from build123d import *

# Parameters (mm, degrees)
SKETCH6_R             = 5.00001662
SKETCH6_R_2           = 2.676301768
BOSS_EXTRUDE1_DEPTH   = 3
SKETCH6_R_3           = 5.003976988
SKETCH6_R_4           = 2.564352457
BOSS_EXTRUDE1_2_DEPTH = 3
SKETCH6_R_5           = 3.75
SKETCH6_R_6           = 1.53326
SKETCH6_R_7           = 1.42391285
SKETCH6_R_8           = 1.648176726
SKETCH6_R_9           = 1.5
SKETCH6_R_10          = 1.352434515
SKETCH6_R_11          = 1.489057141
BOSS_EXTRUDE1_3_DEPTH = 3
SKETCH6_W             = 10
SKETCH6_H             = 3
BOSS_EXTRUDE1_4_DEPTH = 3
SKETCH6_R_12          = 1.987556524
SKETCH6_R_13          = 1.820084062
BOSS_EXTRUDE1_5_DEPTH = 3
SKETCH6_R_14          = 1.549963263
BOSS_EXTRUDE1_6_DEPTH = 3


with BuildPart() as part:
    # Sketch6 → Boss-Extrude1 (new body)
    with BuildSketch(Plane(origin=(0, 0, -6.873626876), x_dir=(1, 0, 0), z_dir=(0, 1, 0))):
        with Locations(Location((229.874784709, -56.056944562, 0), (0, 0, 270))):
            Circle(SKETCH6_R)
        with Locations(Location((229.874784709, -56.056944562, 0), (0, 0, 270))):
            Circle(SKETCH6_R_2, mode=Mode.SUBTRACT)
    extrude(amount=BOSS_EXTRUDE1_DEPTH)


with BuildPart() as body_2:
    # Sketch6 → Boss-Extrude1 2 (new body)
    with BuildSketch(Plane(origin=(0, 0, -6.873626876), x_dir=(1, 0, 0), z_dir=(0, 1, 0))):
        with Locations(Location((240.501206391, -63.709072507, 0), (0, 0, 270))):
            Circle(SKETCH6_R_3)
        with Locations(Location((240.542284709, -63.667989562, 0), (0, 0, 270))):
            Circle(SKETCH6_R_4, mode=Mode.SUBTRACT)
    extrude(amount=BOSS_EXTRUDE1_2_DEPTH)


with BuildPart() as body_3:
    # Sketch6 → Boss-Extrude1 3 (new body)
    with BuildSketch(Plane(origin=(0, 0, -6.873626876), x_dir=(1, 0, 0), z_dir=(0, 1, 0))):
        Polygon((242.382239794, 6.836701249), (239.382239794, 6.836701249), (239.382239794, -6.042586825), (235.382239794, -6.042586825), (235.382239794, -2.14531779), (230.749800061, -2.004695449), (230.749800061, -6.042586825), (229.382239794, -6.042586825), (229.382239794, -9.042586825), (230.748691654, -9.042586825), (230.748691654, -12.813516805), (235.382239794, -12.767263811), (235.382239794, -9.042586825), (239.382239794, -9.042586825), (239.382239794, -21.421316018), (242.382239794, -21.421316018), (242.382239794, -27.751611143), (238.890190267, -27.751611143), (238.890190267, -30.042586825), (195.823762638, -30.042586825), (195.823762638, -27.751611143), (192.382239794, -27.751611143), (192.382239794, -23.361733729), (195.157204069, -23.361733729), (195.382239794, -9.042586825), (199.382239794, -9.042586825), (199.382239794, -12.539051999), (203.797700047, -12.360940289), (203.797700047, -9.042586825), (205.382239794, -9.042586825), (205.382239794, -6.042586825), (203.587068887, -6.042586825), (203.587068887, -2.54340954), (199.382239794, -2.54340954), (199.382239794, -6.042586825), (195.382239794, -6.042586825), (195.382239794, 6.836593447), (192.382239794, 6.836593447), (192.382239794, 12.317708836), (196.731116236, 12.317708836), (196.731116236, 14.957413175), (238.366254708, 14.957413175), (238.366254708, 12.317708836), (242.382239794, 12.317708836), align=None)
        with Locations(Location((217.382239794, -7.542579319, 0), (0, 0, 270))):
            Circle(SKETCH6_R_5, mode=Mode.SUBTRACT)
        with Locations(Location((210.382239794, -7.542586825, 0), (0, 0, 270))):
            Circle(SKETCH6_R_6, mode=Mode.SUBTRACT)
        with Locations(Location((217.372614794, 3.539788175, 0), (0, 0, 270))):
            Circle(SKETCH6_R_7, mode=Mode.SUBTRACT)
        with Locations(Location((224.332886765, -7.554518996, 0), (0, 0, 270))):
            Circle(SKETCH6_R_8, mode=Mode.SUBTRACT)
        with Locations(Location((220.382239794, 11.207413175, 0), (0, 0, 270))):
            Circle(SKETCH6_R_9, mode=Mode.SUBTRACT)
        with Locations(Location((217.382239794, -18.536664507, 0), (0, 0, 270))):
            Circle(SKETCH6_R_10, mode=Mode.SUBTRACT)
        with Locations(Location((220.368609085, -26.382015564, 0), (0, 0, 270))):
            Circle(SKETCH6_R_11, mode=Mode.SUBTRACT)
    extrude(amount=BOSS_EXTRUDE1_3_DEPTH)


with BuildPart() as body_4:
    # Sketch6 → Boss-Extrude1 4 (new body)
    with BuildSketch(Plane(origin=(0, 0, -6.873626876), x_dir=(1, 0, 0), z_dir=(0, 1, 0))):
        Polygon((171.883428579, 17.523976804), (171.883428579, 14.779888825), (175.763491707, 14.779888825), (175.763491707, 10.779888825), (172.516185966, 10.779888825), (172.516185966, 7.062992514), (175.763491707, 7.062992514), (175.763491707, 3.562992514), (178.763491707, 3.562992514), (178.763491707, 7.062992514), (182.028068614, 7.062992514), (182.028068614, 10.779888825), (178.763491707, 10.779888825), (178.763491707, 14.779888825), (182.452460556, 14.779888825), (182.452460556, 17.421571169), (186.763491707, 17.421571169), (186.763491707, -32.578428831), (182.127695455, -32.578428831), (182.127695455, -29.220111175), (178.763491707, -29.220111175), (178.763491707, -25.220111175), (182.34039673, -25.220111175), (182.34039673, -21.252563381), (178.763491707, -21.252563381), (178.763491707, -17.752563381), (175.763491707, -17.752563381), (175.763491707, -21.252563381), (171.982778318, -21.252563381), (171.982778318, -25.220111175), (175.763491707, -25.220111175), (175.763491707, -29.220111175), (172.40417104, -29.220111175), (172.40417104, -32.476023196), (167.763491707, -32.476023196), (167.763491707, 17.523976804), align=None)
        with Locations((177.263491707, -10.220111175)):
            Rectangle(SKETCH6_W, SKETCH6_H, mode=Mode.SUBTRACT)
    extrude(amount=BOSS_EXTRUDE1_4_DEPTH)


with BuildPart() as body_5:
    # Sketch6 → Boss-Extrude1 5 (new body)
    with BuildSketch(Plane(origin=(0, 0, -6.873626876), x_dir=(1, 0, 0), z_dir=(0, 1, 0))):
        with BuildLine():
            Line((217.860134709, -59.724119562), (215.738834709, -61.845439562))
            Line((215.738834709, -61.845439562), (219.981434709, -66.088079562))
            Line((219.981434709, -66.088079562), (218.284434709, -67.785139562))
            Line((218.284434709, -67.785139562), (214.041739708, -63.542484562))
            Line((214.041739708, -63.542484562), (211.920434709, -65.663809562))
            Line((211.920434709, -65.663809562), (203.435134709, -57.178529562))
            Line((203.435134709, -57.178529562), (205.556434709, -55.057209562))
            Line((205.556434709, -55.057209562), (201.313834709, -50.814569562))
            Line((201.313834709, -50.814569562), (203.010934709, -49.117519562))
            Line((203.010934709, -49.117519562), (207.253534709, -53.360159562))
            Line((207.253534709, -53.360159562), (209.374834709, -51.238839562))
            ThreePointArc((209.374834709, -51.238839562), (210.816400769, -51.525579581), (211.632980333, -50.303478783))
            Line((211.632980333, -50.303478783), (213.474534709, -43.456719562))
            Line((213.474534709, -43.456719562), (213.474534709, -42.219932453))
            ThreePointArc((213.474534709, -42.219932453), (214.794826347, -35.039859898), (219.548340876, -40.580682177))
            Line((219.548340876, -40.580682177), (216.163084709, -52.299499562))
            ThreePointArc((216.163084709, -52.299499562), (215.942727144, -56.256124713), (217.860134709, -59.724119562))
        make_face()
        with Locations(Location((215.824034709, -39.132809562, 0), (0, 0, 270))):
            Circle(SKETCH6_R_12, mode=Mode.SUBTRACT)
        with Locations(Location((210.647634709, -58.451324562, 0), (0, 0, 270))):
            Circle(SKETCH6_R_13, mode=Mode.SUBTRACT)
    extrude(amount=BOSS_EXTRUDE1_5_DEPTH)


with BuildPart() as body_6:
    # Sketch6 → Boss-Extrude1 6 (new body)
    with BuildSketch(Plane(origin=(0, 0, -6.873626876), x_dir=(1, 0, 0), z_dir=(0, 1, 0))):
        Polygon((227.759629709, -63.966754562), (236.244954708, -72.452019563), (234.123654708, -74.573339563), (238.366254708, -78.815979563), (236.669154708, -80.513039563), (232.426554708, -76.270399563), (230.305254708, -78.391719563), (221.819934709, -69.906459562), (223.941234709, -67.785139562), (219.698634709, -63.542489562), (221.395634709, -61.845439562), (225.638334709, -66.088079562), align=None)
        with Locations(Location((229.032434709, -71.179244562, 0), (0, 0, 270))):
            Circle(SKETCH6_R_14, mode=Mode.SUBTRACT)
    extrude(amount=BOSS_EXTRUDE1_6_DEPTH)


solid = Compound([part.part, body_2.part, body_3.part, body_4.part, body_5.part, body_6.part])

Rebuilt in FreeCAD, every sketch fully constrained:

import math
import FreeCAD as App
import Part
import Sketcher
Q = App.Units.Quantity


def add_polygon(sketch, points):
    """Adds a closed chain of lines whose ends are joined by coincident constraints."""
    first, n = sketch.GeometryCount, len(points)
    for a, b in zip(points, points[1:] + points[:1]):
        sketch.addGeometry(Part.LineSegment(App.Vector(*a, 0), App.Vector(*b, 0)), False)
    for i in range(n):
        sketch.addConstraint(Sketcher.Constraint("Coincident", first + i, 2, first + (i + 1) % n, 1))

doc = App.newDocument("Part")
body = doc.addObject("PartDesign::Body", "Body")

# Sketch on XZ plane
sketch1 = body.newObject("Sketcher::SketchObject", "Sketch")
sketch1.AttachmentSupport = (doc.getObject("XZ_Plane"), [""])
sketch1.MapMode = "FlatFace"
sketch1.addGeometry([
    Part.Circle(App.Vector(229.9, 49.2, 0), App.Vector(0, 0, 1), 5),
    Part.Circle(App.Vector(229.9, 49.2, 0), App.Vector(0, 0, 1), 2.7),
], False)
sketch1.addConstraint([
    Sketcher.Constraint("Coincident", 1, 3, 0, 3),
    Sketcher.Constraint("Diameter", 0, Q("10.000033 mm")),
    Sketcher.Constraint("Diameter", 1, Q("5.352604 mm")),
    Sketcher.Constraint("DistanceX", -1, 1, 0, 3, Q("229.874785 mm")),
    Sketcher.Constraint("DistanceY", -1, 1, 0, 3, Q("49.183318 mm")),
])
pad1 = body.newObject("PartDesign::Pad", "Pad")
pad1.Profile = sketch1
pad1.Length = 3
pad1.Reversed = True
body2 = doc.addObject("PartDesign::Body", "Body001")

# Sketch on XZ plane
sketch2 = body2.newObject("Sketcher::SketchObject", "Sketch001")
sketch2.AttachmentSupport = (doc.getObject("XZ_Plane001"), [""])
sketch2.MapMode = "FlatFace"
sketch2.addGeometry([
    Part.Circle(App.Vector(240.5, 56.8, 0), App.Vector(0, 0, 1), 5),
    Part.Circle(App.Vector(240.5, 56.8, 0), App.Vector(0, 0, 1), 2.6),
], False)
sketch2.addConstraint([
    Sketcher.Constraint("Diameter", 0, Q("10.007954 mm")),
    Sketcher.Constraint("Diameter", 1, Q("5.128705 mm")),
    Sketcher.Constraint("DistanceX", 0, 3, 1, 3, Q("0.041078 mm")),
    Sketcher.Constraint("DistanceX", -1, 1, 0, 3, Q("240.501206 mm")),
    Sketcher.Constraint("DistanceY", -1, 1, 0, 3, Q("56.835446 mm")),
    Sketcher.Constraint("DistanceY", -1, 1, 1, 3, Q("56.794363 mm")),
])
pad2 = body2.newObject("PartDesign::Pad", "Pad001")
pad2.Profile = sketch2
pad2.Length = 3
pad2.Reversed = True
body3 = doc.addObject("PartDesign::Body", "Body002")

# Sketch on XZ plane
sketch3 = body3.newObject("Sketcher::SketchObject", "Sketch002")
sketch3.AttachmentSupport = (doc.getObject("XZ_Plane002"), [""])
sketch3.MapMode = "FlatFace"
add_polygon(sketch3, [(239.38224, -13.710328), (242.38224, -13.710328), (242.38224, -19.191336), (238.366255, -19.191336), (238.366255, -21.83104), (196.731116, -21.83104), (196.731116, -19.191336), (192.38224, -19.191336), (192.38224, -13.71022), (195.38224, -13.71022), (195.38224, -0.83104), (199.38224, -0.83104), (199.38224, -4.330217), (203.587069, -4.330217), (203.587069, -0.83104), (205.38224, -0.83104), (205.38224, 2.16896), (203.7977, 2.16896), (203.7977, 5.487313), (199.38224, 5.665425), (199.38224, 2.16896), (195.38224, 2.16896), (195.157204, 16.488107), (192.38224, 16.488107), (192.38224, 20.877984), (195.823763, 20.877984), (195.823763, 23.16896), (238.89019, 23.16896), (238.89019, 20.877984), (242.38224, 20.877984), (242.38224, 14.547689), (239.38224, 14.547689), (239.38224, 2.16896), (235.38224, 2.16896), (235.38224, 5.893637), (230.748692, 5.93989), (230.748692, 2.16896), (229.38224, 2.16896), (229.38224, -0.83104), (230.7498, -0.83104), (230.7498, -4.868931), (235.38224, -4.728309), (235.38224, -0.83104), (239.38224, -0.83104)])  # lines 0-43
sketch3.addGeometry(Part.Circle(App.Vector(220.368609, 19.508389, 0), App.Vector(0, 0, 1), 1.489057), False)  # 44
sketch3.addGeometry(Part.Circle(App.Vector(217.38224, 11.663038, 0), App.Vector(0, 0, 1), 1.352435), False)  # 45
sketch3.addGeometry(Part.Circle(App.Vector(224.332887, 0.680892, 0), App.Vector(0, 0, 1), 1.648177), False)  # 46
sketch3.addGeometry(Part.Circle(App.Vector(220.38224, -18.08104, 0), App.Vector(0, 0, 1), 1.5), False)  # 47
sketch3.addGeometry(Part.Circle(App.Vector(217.38224, 0.668952, 0), App.Vector(0, 0, 1), 3.75), False)  # 48
sketch3.addGeometry(Part.Circle(App.Vector(210.38224, 0.66896, 0), App.Vector(0, 0, 1), 1.53326), False)  # 49
sketch3.addGeometry(Part.Circle(App.Vector(217.372615, -10.413415, 0), App.Vector(0, 0, 1), 1.423913), False)  # 50
sketch3.addConstraint([
    Sketcher.Constraint("Horizontal", 0),
    Sketcher.Constraint("Vertical", 1),
    Sketcher.Constraint("Horizontal", 2),
    Sketcher.Constraint("Vertical", 3),
    Sketcher.Constraint("Horizontal", 4),
    Sketcher.Constraint("Vertical", 5),
    Sketcher.Constraint("Horizontal", 6),
    Sketcher.Constraint("Vertical", 7),
    Sketcher.Constraint("Horizontal", 8),
    Sketcher.Constraint("Vertical", 9),
    Sketcher.Constraint("Horizontal", 10),
    Sketcher.Constraint("Vertical", 11),
    Sketcher.Constraint("Horizontal", 12),
    Sketcher.Constraint("Vertical", 13),
    Sketcher.Constraint("Horizontal", 14),
    Sketcher.Constraint("Vertical", 15),
    Sketcher.Constraint("Horizontal", 16),
    Sketcher.Constraint("Vertical", 17),
    Sketcher.Constraint("Vertical", 19),
    Sketcher.Constraint("Horizontal", 20),
    Sketcher.Constraint("Horizontal", 22),
    Sketcher.Constraint("Vertical", 23),
    Sketcher.Constraint("Horizontal", 24),
    Sketcher.Constraint("Vertical", 25),
    Sketcher.Constraint("Horizontal", 26),
    Sketcher.Constraint("Vertical", 27),
    Sketcher.Constraint("Horizontal", 28),
    Sketcher.Constraint("Vertical", 29),
    Sketcher.Constraint("Horizontal", 30),
    Sketcher.Constraint("Vertical", 31),
    Sketcher.Constraint("Horizontal", 32),
    Sketcher.Constraint("Vertical", 33),
    Sketcher.Constraint("Vertical", 35),
    Sketcher.Constraint("Horizontal", 36),
    Sketcher.Constraint("Vertical", 37),
    Sketcher.Constraint("Horizontal", 38),
    Sketcher.Constraint("Vertical", 39),
    Sketcher.Constraint("Vertical", 41),
    Sketcher.Constraint("Horizontal", 42),
    Sketcher.Constraint("Vertical", 43),
    Sketcher.Constraint("Horizontal", 2, 2, 5, 2),
    Sketcher.Constraint("Horizontal", 10, 2, 13, 2),
    Sketcher.Constraint("Horizontal", 16, 2, 19, 2),
    Sketcher.Constraint("Horizontal", 24, 2, 27, 2),
    Sketcher.Constraint("Horizontal", 20, 2, 31, 2),
    Sketcher.Constraint("Horizontal", 32, 2, 35, 2),
    Sketcher.Constraint("Horizontal", 14, 2, 37, 2),
    Sketcher.Constraint("Horizontal", 38, 2, 41, 2),
    Sketcher.Constraint("Vertical", 45, 3, 48, 3),
    Sketcher.Constraint("Vertical", 11, 2, 18, 2),
    Sketcher.Constraint("Vertical", 9, 2, 20, 2),
    Sketcher.Constraint("Vertical", 7, 2, 22, 2),
    Sketcher.Constraint("Vertical", 1, 2, 28, 2),
    Sketcher.Constraint("Vertical", 33, 2, 40, 2),
    Sketcher.Constraint("Vertical", 31, 2, 42, 2),
    Sketcher.Constraint("Equal", 0, 8),
    Sketcher.Constraint("Equal", 20, 32),
    Sketcher.Constraint("Equal", 30, 15),
    Sketcher.Constraint("Diameter", 47, Q("3 mm")),
    Sketcher.Constraint("Diameter", 48, Q("7.5 mm")),
    Sketcher.Constraint("DistanceX", 0, 1, 0, 2, Q("3 mm")),
    Sketcher.Constraint("DistanceX", 10, 1, 10, 2, Q("4 mm")),
    Sketcher.Constraint("DistanceX", 45, 3, 47, 3, Q("3 mm")),
    Sketcher.Constraint("DistanceX", 49, 3, 48, 3, Q("7 mm")),
    Sketcher.Constraint("DistanceX", 47, 3, 0, 2, Q("22 mm")),
    Sketcher.Constraint("DistanceX", 6, 2, 49, 3, Q("18 mm")),
    Sketcher.Constraint("DistanceX", 14, 2, 49, 3, Q("5 mm")),
    Sketcher.Constraint("DistanceX", 36, 2, 32, 2, Q("6 mm")),
    Sketcher.Constraint("DistanceY", 4, 2, 49, 3, Q("22.5 mm")),
    Sketcher.Constraint("DistanceY", 9, 2, 49, 3, Q("1.5 mm")),
    Sketcher.Constraint("DistanceY", 49, 3, 26, 2, Q("22.5 mm")),
    Sketcher.Constraint("Diameter", 45, Q("2.704869 mm")),
    Sketcher.Constraint("Diameter", 49, Q("3.06652 mm")),
    Sketcher.Constraint("DistanceY", 47, 3, 49, 3, Q("18.75 mm")),
    Sketcher.Constraint("Diameter", 44, Q("2.978114 mm")),
    Sketcher.Constraint("Diameter", 46, Q("3.296353 mm")),
    Sketcher.Constraint("Diameter", 50, Q("2.847826 mm")),
    Sketcher.Constraint("DistanceX", 4, 2, 4, 1, Q("41.635138 mm")),
    Sketcher.Constraint("DistanceX", 12, 1, 12, 2, Q("4.204829 mm")),
    Sketcher.Constraint("DistanceX", 16, 2, 16, 1, Q("1.58454 mm")),
    Sketcher.Constraint("DistanceX", 28, 1, 28, 2, Q("3.49205 mm")),
    Sketcher.Constraint("DistanceX", 36, 2, 36, 1, Q("1.366452 mm")),
    Sketcher.Constraint("DistanceX", 38, 1, 38, 2, Q("1.36756 mm")),
    Sketcher.Constraint("DistanceY", 9, 1, 9, 2, Q("12.87918 mm")),
    Sketcher.Constraint("DistanceY", 31, 2, 31, 1, Q("12.378729 mm")),
    Sketcher.Constraint("DistanceY", 35, 2, 35, 1, Q("3.77093 mm")),
    Sketcher.Constraint("DistanceY", 39, 2, 39, 1, Q("4.037891 mm")),
    Sketcher.Constraint("DistanceY", 41, 1, 41, 2, Q("3.897269 mm")),
    Sketcher.Constraint("DistanceY", 43, 2, 43, 1, Q("12.879288 mm")),
    Sketcher.Constraint("DistanceX", -1, 1, 16, 2, Q("203.7977 mm")),
    Sketcher.Constraint("DistanceX", 4, 2, 50, 3, Q("20.641499 mm")),
    Sketcher.Constraint("DistanceY", 29, 2, 44, 3, Q("4.9607 mm")),
    Sketcher.Constraint("Distance", 18, Q("4.419051 mm")),
    Sketcher.Constraint("Distance", 34, Q("4.633779 mm")),
    Sketcher.Constraint("DistanceX", 2, 2, 2, 1, Q("4.015985 mm")),
    Sketcher.Constraint("DistanceX", 22, 2, 22, 1, Q("2.774964 mm")),
    Sketcher.Constraint("DistanceX", 24, 1, 24, 2, Q("3.441523 mm")),
    Sketcher.Constraint("DistanceY", 1, 2, 1, 1, Q("5.481008 mm")),
    Sketcher.Constraint("DistanceY", 11, 2, 11, 1, Q("3.499177 mm")),
    Sketcher.Constraint("DistanceY", 17, 1, 17, 2, Q("3.318353 mm")),
    Sketcher.Constraint("DistanceY", 23, 1, 23, 2, Q("4.389877 mm")),
    Sketcher.Constraint("DistanceY", 25, 1, 25, 2, Q("2.290976 mm")),
    Sketcher.Constraint("DistanceX", -1, 1, 44, 3, Q("220.368609 mm")),
    Sketcher.Constraint("DistanceY", -1, 1, 44, 3, Q("19.508389 mm")),
    Sketcher.Constraint("DistanceY", 45, 3, 44, 3, Q("7.845351 mm")),
    Sketcher.Constraint("DistanceY", 48, 3, 46, 3, Q("0.01194 mm")),
    Sketcher.Constraint("DistanceX", 50, 3, 46, 3, Q("6.960272 mm")),
    Sketcher.Constraint("DistanceY", 0, 2, 46, 3, Q("14.39122 mm")),
    Sketcher.Constraint("DistanceY", 1, 2, 50, 3, Q("8.777921 mm")),
])
pad3 = body3.newObject("PartDesign::Pad", "Pad002")
pad3.Profile = sketch3
pad3.Length = 3
pad3.Reversed = True
body4 = doc.addObject("PartDesign::Body", "Body003")

# Sketch on XZ plane
sketch4 = body4.newObject("Sketcher::SketchObject", "Sketch003")
sketch4.AttachmentSupport = (doc.getObject("XZ_Plane003"), [""])
sketch4.MapMode = "FlatFace"
add_polygon(sketch4, [(171.9, -21.7), (171.9, -24.4), (167.8, -24.4), (167.8, 25.6), (172.4, 25.6), (172.4, 22.3), (175.8, 22.3), (175.8, 18.3), (172, 18.3), (172, 14.4), (175.8, 14.4), (175.8, 10.9), (178.8, 10.9), (178.8, 14.4), (182.3, 14.4), (182.3, 18.3), (178.8, 18.3), (178.8, 22.3), (182.1, 22.3), (182.1, 25.7), (186.8, 25.7), (186.8, -24.3), (182.5, -24.3), (182.5, -21.7), (178.8, -21.7), (178.8, -17.7), (182, -17.7), (182, -13.9), (178.8, -13.9), (178.8, -10.4), (175.8, -10.4), (175.8, -13.9), (172.5, -13.9), (172.5, -17.7), (175.8, -17.7), (175.8, -21.7)])  # lines 0-35
add_polygon(sketch4, [(172.3, 4.8), (172.3, 1.8), (182.3, 1.8), (182.3, 4.8)])  # lines 36-39
sketch4.addConstraint([
    Sketcher.Constraint("Vertical", 0),
    Sketcher.Constraint("Horizontal", 1),
    Sketcher.Constraint("Vertical", 2),
    Sketcher.Constraint("Horizontal", 3),
    Sketcher.Constraint("Vertical", 4),
    Sketcher.Constraint("Horizontal", 5),
    Sketcher.Constraint("Vertical", 6),
    Sketcher.Constraint("Horizontal", 7),
    Sketcher.Constraint("Vertical", 8),
    Sketcher.Constraint("Horizontal", 9),
    Sketcher.Constraint("Vertical", 10),
    Sketcher.Constraint("Horizontal", 11),
    Sketcher.Constraint("Vertical", 12),
    Sketcher.Constraint("Horizontal", 13),
    Sketcher.Constraint("Vertical", 14),
    Sketcher.Constraint("Horizontal", 15),
    Sketcher.Constraint("Vertical", 16),
    Sketcher.Constraint("Horizontal", 17),
    Sketcher.Constraint("Vertical", 18),
    Sketcher.Constraint("Horizontal", 19),
    Sketcher.Constraint("Vertical", 20),
    Sketcher.Constraint("Horizontal", 21),
    Sketcher.Constraint("Vertical", 22),
    Sketcher.Constraint("Horizontal", 23),
    Sketcher.Constraint("Vertical", 24),
    Sketcher.Constraint("Horizontal", 25),
    Sketcher.Constraint("Vertical", 26),
    Sketcher.Constraint("Horizontal", 27),
    Sketcher.Constraint("Vertical", 28),
    Sketcher.Constraint("Horizontal", 29),
    Sketcher.Constraint("Vertical", 30),
    Sketcher.Constraint("Horizontal", 31),
    Sketcher.Constraint("Vertical", 32),
    Sketcher.Constraint("Horizontal", 33),
    Sketcher.Constraint("Vertical", 34),
    Sketcher.Constraint("Horizontal", 35),
    Sketcher.Constraint("Vertical", 36),
    Sketcher.Constraint("Horizontal", 37),
    Sketcher.Constraint("Vertical", 38),
    Sketcher.Constraint("Horizontal", 39),
    Sketcher.Constraint("Horizontal", 9, 2, 12, 2),
    Sketcher.Constraint("Horizontal", 7, 2, 14, 2),
    Sketcher.Constraint("Horizontal", 5, 2, 16, 2),
    Sketcher.Constraint("Horizontal", 27, 2, 30, 2),
    Sketcher.Constraint("Horizontal", 25, 2, 32, 2),
    Sketcher.Constraint("Horizontal", 23, 2, 34, 2),
    Sketcher.Constraint("Vertical", 6, 2, 9, 2),
    Sketcher.Constraint("Vertical", 12, 2, 15, 2),
    Sketcher.Constraint("Vertical", 16, 2, 23, 2),
    Sketcher.Constraint("Vertical", 24, 2, 27, 2),
    Sketcher.Constraint("Vertical", 10, 2, 29, 2),
    Sketcher.Constraint("Vertical", 30, 2, 33, 2),
    Sketcher.Constraint("Equal", 2, 20),
    Sketcher.Constraint("Equal", 16, 24),
    Sketcher.Constraint("Equal", 12, 28),
    Sketcher.Constraint("Equal", 29, 36),
    Sketcher.Constraint("DistanceX", 11, 1, 11, 2, Q("3 mm")),
    Sketcher.Constraint("DistanceX", 37, 1, 37, 2, Q("10 mm")),
    Sketcher.Constraint("DistanceY", 2, 1, 2, 2, Q("50 mm")),
    Sketcher.Constraint("DistanceY", 6, 2, 6, 1, Q("4 mm")),
    Sketcher.Constraint("DistanceY", 10, 2, 10, 1, Q("3.5 mm")),
    Sketcher.Constraint("DistanceX", 2, 2, 5, 2, Q("8 mm")),
    Sketcher.Constraint("DistanceX", 16, 2, 19, 2, Q("8 mm")),
    Sketcher.Constraint("DistanceX", 36, 2, 10, 2, Q("3.5 mm")),
    Sketcher.Constraint("DistanceX", 3, 1, 3, 2, Q("4.640679 mm")),
    Sketcher.Constraint("DistanceX", 21, 2, 21, 1, Q("4.311031 mm")),
    Sketcher.Constraint("DistanceY", -1, 1, 18, 2, Q("25.704802 mm")),
    Sketcher.Constraint("DistanceX", 17, 2, 14, 2, Q("0.212701 mm")),
    Sketcher.Constraint("DistanceX", 1, 2, 1, 1, Q("4.119937 mm")),
    Sketcher.Constraint("DistanceX", 7, 2, 7, 1, Q("3.780713 mm")),
    Sketcher.Constraint("DistanceX", 13, 1, 13, 2, Q("3.576905 mm")),
    Sketcher.Constraint("DistanceX", 25, 1, 25, 2, Q("3.264577 mm")),
    Sketcher.Constraint("DistanceX", 31, 2, 31, 1, Q("3.247306 mm")),
    Sketcher.Constraint("DistanceY", 0, 2, 0, 1, Q("2.744088 mm")),
    Sketcher.Constraint("DistanceY", 4, 2, 4, 1, Q("3.255912 mm")),
    Sketcher.Constraint("DistanceY", 8, 2, 8, 1, Q("3.967548 mm")),
    Sketcher.Constraint("DistanceY", 18, 1, 18, 2, Q("3.358318 mm")),
    Sketcher.Constraint("DistanceY", 26, 1, 26, 2, Q("3.716896 mm")),
    Sketcher.Constraint("DistanceX", -1, 1, 0, 2, Q("171.883429 mm")),
    Sketcher.Constraint("DistanceY", -1, 1, 36, 2, Q("1.846484 mm")),
])
pad4 = body4.newObject("PartDesign::Pad", "Pad003")
pad4.Profile = sketch4
pad4.Length = 3
pad4.Reversed = True
body5 = doc.addObject("PartDesign::Body", "Body004")

# Sketch on XZ plane
sketch5 = body5.newObject("Sketcher::SketchObject", "Sketch004")
sketch5.AttachmentSupport = (doc.getObject("XZ_Plane004"), [""])
sketch5.MapMode = "FlatFace"
sketch5.addGeometry([
    Part.LineSegment(App.Vector(215.7, 55, 0), App.Vector(217.9, 52.9, 0)),  # 0
    Part.ArcOfCircle(Part.Circle(App.Vector(222.9, 47.8, 0), App.Vector(0, 0, 1), 7.2), math.radians(135), math.radians(199)),  # 1
    Part.LineSegment(App.Vector(216.2, 45.4, 0), App.Vector(219.5, 33.7, 0)),  # 2
    Part.ArcOfCircle(Part.Circle(App.Vector(215.8, 32.1, 0), App.Vector(0, 0, 1), 4), math.radians(126), math.radians(384)),  # 3
    Part.LineSegment(App.Vector(213.5, 35.3, 0), App.Vector(213.5, 36.6, 0)),  # 4
    Part.LineSegment(App.Vector(213.5, 36.6, 0), App.Vector(211.6, 43.4, 0)),  # 5
    Part.ArcOfCircle(Part.Circle(App.Vector(210.3, 43.4, 0), App.Vector(0, 0, 1), 1.3), math.radians(0), math.radians(135)),  # 6
    Part.LineSegment(App.Vector(209.4, 44.4, 0), App.Vector(207.3, 46.5, 0)),  # 7
    Part.LineSegment(App.Vector(207.3, 46.5, 0), App.Vector(203, 42.2, 0)),  # 8
    Part.LineSegment(App.Vector(203, 42.2, 0), App.Vector(201.3, 43.9, 0)),  # 9
    Part.LineSegment(App.Vector(201.3, 43.9, 0), App.Vector(205.6, 48.2, 0)),  # 10
    Part.LineSegment(App.Vector(205.6, 48.2, 0), App.Vector(203.4, 50.3, 0)),  # 11
    Part.LineSegment(App.Vector(203.4, 50.3, 0), App.Vector(211.9, 58.8, 0)),  # 12
    Part.LineSegment(App.Vector(211.9, 58.8, 0), App.Vector(214, 56.7, 0)),  # 13
    Part.LineSegment(App.Vector(214, 56.7, 0), App.Vector(218.3, 60.9, 0)),  # 14
    Part.LineSegment(App.Vector(218.3, 60.9, 0), App.Vector(220, 59.2, 0)),  # 15
    Part.LineSegment(App.Vector(220, 59.2, 0), App.Vector(215.7, 55, 0)),  # 16
    Part.Circle(App.Vector(210.6, 51.6, 0), App.Vector(0, 0, 1), 1.8),  # 17
    Part.Circle(App.Vector(215.8, 32.3, 0), App.Vector(0, 0, 1), 2),  # 18
], False)
sketch5.addConstraint([
    Sketcher.Constraint("Coincident", 0, 2, 1, 1),
    Sketcher.Constraint("Coincident", 1, 2, 2, 1),
    Sketcher.Constraint("Coincident", 2, 2, 3, 2),
    Sketcher.Constraint("Coincident", 3, 1, 4, 1),
    Sketcher.Constraint("Coincident", 4, 2, 5, 1),
    Sketcher.Constraint("Coincident", 5, 2, 6, 1),
    Sketcher.Constraint("Coincident", 6, 2, 7, 1),
    Sketcher.Constraint("Coincident", 7, 2, 8, 1),
    Sketcher.Constraint("Coincident", 8, 2, 9, 1),
    Sketcher.Constraint("Coincident", 9, 2, 10, 1),
    Sketcher.Constraint("Coincident", 10, 2, 11, 1),
    Sketcher.Constraint("Coincident", 11, 2, 12, 1),
    Sketcher.Constraint("Coincident", 12, 2, 13, 1),
    Sketcher.Constraint("Coincident", 13, 2, 14, 1),
    Sketcher.Constraint("Coincident", 14, 2, 15, 1),
    Sketcher.Constraint("Coincident", 15, 2, 16, 1),
    Sketcher.Constraint("Coincident", 16, 2, 0, 1),
    Sketcher.Constraint("Vertical", 4),
    Sketcher.Constraint("Parallel", 0, 7),
    Sketcher.Constraint("Parallel", 8, 10),
    Sketcher.Constraint("Parallel", 7, 11),
    Sketcher.Constraint("Parallel", 11, 13),
    Sketcher.Constraint("Perpendicular", 13, 14),
    Sketcher.Constraint("Parallel", 10, 16),
    Sketcher.Constraint("Horizontal", 6, 3, 5, 2),
    Sketcher.Constraint("Equal", 0, 7),
    Sketcher.Constraint("Equal", 8, 10),
    Sketcher.Constraint("Equal", 7, 11),
    Sketcher.Constraint("Equal", 10, 16),
    Sketcher.Constraint("Diameter", 17, Q("3.640168 mm")),
    Sketcher.Constraint("Diameter", 18, Q("3.975113 mm")),
    Sketcher.Constraint("Radius", 1, Q("7.161046 mm")),
    Sketcher.Constraint("Radius", 3, Q("4.044963 mm")),
    Sketcher.Constraint("Radius", 6, Q("1.322794 mm")),
    Sketcher.Constraint("DistanceX", 9, 2, 6, 2, Q("8.061 mm")),
    Sketcher.Constraint("DistanceX", 10, 2, 12, 2, Q("6.364 mm")),
    Sketcher.Constraint("DistanceX", 12, 2, 14, 2, Q("6.364 mm")),
    Sketcher.Constraint("DistanceX", 14, 2, 15, 2, Q("1.697 mm")),
    Sketcher.Constraint("DistanceX", 17, 3, 1, 3, Q("12.2761 mm")),
    Sketcher.Constraint("DistanceX", 18, 3, 1, 3, Q("7.0997 mm")),
    Sketcher.Constraint("DistanceX", 0, 2, 1, 3, Q("5.0636 mm")),
    Sketcher.Constraint("DistanceX", 6, 3, 1, 2, Q("5.852898 mm")),
    Sketcher.Constraint("DistanceX", 3, 1, 18, 3, Q("2.3495 mm")),
    Sketcher.Constraint("DistanceX", 6, 2, 17, 3, Q("1.2728 mm")),
    Sketcher.Constraint("DistanceX", 8, 2, 7, 2, Q("4.2426 mm")),
    Sketcher.Constraint("DistanceY", 4, 2, 8, 2, Q("5.6608 mm")),
    Sketcher.Constraint("DistanceY", 10, 2, 12, 2, Q("10.6066 mm")),
    Sketcher.Constraint("Distance", 8, Q("5.999971 mm")),
    Sketcher.Constraint("Distance", 14, Q("6.000049 mm")),
    Sketcher.Constraint("DistanceY", 4, 1, 4, 2, Q("1.236787 mm")),
    Sketcher.Constraint("DistanceY", -1, 1, 6, 3, Q("43.429852 mm")),
    Sketcher.Constraint("DistanceX", -1, 1, 2, 2, Q("219.548341 mm")),
    Sketcher.Constraint("DistanceX", -1, 1, 5, 2, Q("211.63298 mm")),
    Sketcher.Constraint("DistanceX", -1, 1, 13, 2, Q("214.04174 mm")),
    Sketcher.Constraint("DistanceX", 3, 3, 1, 3, Q("7.074931 mm")),
    Sketcher.Constraint("DistanceX", 6, 3, 1, 3, Q("12.613548 mm")),
    Sketcher.Constraint("DistanceY", 3, 3, 17, 3, Q("19.506231 mm")),
    Sketcher.Constraint("DistanceY", 18, 3, 6, 3, Q("11.170669 mm")),
    Sketcher.Constraint("DistanceY", 18, 3, 1, 3, Q("15.527662 mm")),
    Sketcher.Constraint("DistanceY", 8, 2, 9, 2, Q("1.69705 mm")),
])
pad5 = body5.newObject("PartDesign::Pad", "Pad004")
pad5.Profile = sketch5
pad5.Length = 3
pad5.Reversed = True
body6 = doc.addObject("PartDesign::Body", "Body005")

# Sketch on XZ plane
sketch6 = body6.newObject("Sketcher::SketchObject", "Sketch005")
sketch6.AttachmentSupport = (doc.getObject("XZ_Plane005"), [""])
sketch6.MapMode = "FlatFace"
add_polygon(sketch6, [(236.2, 65.6), (227.8, 57.1), (225.6, 59.2), (221.4, 55), (219.7, 56.7), (223.9, 60.9), (221.8, 63), (230.3, 71.5), (232.4, 69.4), (236.7, 73.6), (238.4, 71.9), (234.1, 67.7)])  # lines 0-11
sketch6.addGeometry(Part.Circle(App.Vector(229, 64.3, 0), App.Vector(0, 0, 1), 1.5), False)  # 12
sketch6.addConstraint([
    Sketcher.Constraint("Perpendicular", 1, 2),
    Sketcher.Constraint("Perpendicular", 0, 5),
    Sketcher.Constraint("Perpendicular", 5, 6),
    Sketcher.Constraint("Perpendicular", 6, 7),
    Sketcher.Constraint("Parallel", 4, 8),
    Sketcher.Constraint("Parallel", 8, 10),
    Sketcher.Constraint("Parallel", 7, 11),
    Sketcher.Constraint("Equal", 1, 5),
    Sketcher.Constraint("Equal", 5, 7),
    Sketcher.Constraint("Equal", 8, 10),
    Sketcher.Constraint("Equal", 7, 11),
    Sketcher.Constraint("Diameter", 12, Q("3.099927 mm")),
    Sketcher.Constraint("DistanceX", 3, 2, 2, 2, Q("1.697 mm")),
    Sketcher.Constraint("DistanceX", 6, 2, 9, 2, Q("8.061 mm")),
    Sketcher.Constraint("DistanceX", 1, 2, 12, 3, Q("3.3941 mm")),
    Sketcher.Constraint("DistanceX", 2, 2, 1, 2, Q("4.2427 mm")),
    Sketcher.Constraint("DistanceX", 4, 2, 1, 2, Q("1.6971 mm")),
    Sketcher.Constraint("DistanceY", 2, 2, 4, 2, Q("5.9397 mm")),
    Sketcher.Constraint("DistanceX", 5, 2, 4, 2, Q("2.1213 mm")),
    Sketcher.Constraint("DistanceX", 7, 2, 8, 2, Q("4.2426 mm")),
    Sketcher.Constraint("DistanceY", 4, 2, 8, 2, Q("12.7279 mm")),
    Sketcher.Constraint("DistanceY", 10, 2, 8, 2, Q("5.9397 mm")),
    Sketcher.Constraint("Distance", 0, Q("12.000019 mm")),
    Sketcher.Constraint("Distance", 2, Q("6.000041 mm")),
    Sketcher.Constraint("DistanceX", -1, 1, 0, 2, Q("227.75963 mm")),
    Sketcher.Constraint("DistanceY", 0, 2, 12, 3, Q("7.21249 mm")),
    Sketcher.Constraint("DistanceY", -1, 1, 12, 3, Q("64.305618 mm")),
])
pad6 = body6.newObject("PartDesign::Pad", "Pad005")
pad6.Profile = sketch6
pad6.Length = 3
pad6.Reversed = True

doc.recompute()
